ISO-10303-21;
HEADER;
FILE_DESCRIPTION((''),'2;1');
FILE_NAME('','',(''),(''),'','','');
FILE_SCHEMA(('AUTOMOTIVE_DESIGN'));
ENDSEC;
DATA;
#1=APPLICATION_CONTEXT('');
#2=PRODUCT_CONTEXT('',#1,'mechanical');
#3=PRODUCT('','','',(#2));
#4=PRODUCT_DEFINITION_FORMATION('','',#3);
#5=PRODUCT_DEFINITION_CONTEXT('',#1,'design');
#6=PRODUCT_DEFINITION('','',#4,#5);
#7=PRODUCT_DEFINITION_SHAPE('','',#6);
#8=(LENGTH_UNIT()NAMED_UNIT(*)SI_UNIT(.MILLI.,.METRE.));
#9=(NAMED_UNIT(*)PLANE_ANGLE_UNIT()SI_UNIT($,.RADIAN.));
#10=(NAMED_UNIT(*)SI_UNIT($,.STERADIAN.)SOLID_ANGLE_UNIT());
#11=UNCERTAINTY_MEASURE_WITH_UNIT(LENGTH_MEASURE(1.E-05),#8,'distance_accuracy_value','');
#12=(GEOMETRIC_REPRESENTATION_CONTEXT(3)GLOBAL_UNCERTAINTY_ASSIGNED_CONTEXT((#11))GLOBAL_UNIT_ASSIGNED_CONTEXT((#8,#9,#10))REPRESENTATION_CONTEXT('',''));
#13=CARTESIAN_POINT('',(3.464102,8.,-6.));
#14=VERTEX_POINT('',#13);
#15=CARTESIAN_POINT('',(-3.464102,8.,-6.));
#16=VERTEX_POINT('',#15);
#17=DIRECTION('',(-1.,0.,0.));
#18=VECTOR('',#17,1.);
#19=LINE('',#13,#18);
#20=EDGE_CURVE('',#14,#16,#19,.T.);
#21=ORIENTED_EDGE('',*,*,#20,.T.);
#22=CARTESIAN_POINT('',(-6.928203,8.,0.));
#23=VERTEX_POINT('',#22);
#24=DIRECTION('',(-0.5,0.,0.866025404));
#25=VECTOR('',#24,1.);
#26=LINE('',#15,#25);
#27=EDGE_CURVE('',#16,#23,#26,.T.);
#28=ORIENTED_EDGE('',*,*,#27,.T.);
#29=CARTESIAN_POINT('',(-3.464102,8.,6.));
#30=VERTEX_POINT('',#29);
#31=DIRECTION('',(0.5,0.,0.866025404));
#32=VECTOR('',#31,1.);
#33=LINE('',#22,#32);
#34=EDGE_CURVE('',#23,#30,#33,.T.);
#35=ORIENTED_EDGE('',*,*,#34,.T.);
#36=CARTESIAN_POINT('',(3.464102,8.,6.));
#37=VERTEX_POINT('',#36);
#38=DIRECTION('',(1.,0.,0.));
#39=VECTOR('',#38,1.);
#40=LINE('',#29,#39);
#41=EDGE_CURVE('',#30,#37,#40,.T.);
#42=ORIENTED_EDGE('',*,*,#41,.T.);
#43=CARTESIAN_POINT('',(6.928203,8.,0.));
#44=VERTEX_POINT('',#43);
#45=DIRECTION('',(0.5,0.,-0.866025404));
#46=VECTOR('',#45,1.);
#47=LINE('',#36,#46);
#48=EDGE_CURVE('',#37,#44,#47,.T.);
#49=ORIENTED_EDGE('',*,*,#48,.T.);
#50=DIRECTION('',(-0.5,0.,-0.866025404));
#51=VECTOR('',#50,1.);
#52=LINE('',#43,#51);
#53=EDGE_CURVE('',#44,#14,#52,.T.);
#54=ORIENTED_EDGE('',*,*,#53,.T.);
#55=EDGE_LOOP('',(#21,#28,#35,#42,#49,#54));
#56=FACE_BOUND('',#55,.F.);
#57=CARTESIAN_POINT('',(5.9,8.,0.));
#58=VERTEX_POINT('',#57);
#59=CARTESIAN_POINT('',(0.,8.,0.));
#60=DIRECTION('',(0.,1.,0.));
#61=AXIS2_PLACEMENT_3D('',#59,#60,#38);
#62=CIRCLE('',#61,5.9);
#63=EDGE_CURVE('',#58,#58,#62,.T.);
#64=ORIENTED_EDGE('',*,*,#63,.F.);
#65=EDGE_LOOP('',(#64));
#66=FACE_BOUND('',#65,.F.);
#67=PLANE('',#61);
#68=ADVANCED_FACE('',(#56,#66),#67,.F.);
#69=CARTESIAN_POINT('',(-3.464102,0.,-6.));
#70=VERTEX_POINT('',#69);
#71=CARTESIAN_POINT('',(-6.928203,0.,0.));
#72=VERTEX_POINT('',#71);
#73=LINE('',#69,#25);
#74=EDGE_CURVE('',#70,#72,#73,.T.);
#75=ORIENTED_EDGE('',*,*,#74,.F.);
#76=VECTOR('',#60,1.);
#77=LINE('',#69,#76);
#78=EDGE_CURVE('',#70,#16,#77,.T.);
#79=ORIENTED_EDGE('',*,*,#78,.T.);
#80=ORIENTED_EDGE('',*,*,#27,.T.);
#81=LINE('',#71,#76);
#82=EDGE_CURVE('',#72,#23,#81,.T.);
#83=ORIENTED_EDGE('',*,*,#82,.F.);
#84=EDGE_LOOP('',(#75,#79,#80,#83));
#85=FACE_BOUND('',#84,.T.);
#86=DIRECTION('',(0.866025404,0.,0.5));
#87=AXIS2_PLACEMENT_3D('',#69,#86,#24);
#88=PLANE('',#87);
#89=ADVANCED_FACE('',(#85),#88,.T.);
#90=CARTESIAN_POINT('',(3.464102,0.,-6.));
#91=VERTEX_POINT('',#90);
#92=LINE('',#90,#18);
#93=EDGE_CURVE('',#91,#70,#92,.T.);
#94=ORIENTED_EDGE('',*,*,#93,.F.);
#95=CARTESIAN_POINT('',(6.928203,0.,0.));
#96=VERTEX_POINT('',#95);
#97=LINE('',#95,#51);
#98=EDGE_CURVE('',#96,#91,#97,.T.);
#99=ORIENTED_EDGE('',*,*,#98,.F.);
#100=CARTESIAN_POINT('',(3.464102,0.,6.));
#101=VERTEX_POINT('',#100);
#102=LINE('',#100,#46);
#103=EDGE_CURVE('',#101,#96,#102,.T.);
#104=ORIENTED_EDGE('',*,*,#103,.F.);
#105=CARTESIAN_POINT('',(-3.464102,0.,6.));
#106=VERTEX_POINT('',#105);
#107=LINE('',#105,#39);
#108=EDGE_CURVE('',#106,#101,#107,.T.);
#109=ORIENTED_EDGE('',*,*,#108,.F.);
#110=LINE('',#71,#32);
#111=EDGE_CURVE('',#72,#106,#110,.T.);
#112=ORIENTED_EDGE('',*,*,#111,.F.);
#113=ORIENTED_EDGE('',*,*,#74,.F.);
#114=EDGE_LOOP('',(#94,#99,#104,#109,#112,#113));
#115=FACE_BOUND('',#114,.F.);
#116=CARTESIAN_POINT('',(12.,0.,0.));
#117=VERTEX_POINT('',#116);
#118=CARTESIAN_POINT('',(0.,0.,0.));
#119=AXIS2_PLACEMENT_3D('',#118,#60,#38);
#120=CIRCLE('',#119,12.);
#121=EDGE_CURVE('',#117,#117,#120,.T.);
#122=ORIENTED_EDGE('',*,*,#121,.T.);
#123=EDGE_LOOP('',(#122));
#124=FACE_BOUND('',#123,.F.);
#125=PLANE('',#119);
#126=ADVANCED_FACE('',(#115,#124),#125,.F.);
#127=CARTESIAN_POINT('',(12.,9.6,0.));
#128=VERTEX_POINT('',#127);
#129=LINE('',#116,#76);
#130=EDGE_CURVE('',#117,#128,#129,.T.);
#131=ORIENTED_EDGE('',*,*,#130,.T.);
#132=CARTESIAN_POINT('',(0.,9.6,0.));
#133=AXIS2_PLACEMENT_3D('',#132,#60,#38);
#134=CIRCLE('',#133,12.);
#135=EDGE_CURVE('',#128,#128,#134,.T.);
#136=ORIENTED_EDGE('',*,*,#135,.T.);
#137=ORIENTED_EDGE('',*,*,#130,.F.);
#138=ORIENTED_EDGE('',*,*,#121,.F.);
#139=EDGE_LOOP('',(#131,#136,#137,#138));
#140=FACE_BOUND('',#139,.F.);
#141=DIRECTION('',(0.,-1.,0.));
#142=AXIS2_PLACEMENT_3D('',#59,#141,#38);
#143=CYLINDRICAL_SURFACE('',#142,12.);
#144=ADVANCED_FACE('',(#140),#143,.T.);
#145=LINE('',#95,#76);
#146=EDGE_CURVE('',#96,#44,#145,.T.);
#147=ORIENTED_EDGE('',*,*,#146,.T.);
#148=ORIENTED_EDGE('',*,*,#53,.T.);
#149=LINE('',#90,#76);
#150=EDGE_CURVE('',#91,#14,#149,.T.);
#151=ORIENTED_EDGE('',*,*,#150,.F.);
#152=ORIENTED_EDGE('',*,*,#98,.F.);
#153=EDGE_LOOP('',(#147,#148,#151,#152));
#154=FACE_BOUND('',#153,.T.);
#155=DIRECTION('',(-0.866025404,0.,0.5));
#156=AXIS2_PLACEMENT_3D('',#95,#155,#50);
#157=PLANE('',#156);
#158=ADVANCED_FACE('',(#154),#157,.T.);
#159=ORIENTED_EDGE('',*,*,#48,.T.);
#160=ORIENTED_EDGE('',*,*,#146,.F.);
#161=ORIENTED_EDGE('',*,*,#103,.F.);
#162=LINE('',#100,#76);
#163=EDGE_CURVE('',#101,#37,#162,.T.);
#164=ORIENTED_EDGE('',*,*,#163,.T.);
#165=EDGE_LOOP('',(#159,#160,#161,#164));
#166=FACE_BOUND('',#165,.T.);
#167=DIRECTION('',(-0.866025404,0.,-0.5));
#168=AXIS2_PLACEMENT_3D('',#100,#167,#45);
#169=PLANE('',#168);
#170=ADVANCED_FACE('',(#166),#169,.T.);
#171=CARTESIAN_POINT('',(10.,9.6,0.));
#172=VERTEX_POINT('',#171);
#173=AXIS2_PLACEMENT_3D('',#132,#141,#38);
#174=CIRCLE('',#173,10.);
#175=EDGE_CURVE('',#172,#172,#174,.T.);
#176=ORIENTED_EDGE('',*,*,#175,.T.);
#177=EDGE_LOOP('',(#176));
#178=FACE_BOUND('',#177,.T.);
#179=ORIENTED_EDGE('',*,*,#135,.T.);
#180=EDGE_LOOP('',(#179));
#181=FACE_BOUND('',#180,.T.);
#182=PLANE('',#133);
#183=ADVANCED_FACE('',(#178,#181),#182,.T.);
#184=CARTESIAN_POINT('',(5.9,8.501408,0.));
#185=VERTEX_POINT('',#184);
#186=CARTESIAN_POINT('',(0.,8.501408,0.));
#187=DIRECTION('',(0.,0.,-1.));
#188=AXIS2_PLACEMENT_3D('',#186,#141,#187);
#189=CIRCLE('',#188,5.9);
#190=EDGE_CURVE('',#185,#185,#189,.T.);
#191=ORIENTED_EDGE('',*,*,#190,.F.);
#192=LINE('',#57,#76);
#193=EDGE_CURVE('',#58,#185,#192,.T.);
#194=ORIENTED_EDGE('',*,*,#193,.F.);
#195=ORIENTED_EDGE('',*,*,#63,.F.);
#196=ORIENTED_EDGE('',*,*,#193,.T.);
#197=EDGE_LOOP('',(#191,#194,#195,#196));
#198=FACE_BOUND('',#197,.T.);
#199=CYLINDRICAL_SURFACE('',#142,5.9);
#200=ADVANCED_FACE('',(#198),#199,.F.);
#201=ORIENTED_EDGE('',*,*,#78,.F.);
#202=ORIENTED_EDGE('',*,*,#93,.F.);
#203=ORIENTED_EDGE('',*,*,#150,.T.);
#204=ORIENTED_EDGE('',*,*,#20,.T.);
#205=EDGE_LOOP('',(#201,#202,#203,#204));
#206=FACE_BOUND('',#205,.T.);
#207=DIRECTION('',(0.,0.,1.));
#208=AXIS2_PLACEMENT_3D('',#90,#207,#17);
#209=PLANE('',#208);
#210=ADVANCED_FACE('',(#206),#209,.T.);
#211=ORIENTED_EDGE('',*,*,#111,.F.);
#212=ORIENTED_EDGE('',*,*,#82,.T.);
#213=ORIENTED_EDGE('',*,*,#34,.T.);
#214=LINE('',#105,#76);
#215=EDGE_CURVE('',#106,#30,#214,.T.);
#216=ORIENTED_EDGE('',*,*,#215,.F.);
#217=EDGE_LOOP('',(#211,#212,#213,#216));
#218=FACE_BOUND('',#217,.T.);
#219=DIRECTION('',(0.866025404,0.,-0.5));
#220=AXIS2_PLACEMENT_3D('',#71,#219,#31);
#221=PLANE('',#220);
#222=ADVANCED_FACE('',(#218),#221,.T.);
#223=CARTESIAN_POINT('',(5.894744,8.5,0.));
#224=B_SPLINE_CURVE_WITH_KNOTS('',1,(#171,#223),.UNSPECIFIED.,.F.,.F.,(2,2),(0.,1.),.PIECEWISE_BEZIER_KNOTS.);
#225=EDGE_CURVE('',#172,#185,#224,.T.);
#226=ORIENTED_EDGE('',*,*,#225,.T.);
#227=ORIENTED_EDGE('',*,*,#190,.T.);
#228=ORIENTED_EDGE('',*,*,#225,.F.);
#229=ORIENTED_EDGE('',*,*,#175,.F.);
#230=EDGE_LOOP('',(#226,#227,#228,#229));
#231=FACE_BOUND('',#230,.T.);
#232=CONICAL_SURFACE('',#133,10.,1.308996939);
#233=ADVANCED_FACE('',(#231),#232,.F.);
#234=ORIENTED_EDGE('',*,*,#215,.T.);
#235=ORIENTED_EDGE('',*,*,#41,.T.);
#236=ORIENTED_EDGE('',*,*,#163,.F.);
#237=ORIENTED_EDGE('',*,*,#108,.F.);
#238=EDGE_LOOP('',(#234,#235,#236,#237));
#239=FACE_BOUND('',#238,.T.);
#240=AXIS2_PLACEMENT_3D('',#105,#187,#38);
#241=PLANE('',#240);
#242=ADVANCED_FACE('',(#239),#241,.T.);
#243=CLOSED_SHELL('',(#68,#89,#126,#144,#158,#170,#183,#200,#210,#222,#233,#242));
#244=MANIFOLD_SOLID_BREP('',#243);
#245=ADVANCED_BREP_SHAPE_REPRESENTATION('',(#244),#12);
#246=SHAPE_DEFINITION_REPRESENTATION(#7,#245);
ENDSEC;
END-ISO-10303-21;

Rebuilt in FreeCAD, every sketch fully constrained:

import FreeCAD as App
import Part
import Sketcher
Q = App.Units.Quantity


def add_polygon(sketch, points):
    """Adds a closed chain of lines whose ends are joined by coincident constraints."""
    first, n = sketch.GeometryCount, len(points)
    for a, b in zip(points, points[1:] + points[:1]):
        sketch.addGeometry(Part.LineSegment(App.Vector(*a, 0), App.Vector(*b, 0)), False)
    for i in range(n):
        sketch.addConstraint(Sketcher.Constraint("Coincident", first + i, 2, first + (i + 1) % n, 1))

doc = App.newDocument("Part")
body = doc.addObject("PartDesign::Body", "Body")

sketch1 = doc.addObject("Sketcher::SketchObject", "Sketch")
body.addObject(sketch1)
sketch1.AttachmentSupport = (doc.XZ_Plane, [""])
sketch1.MapMode = "FlatFace"
sketch1.addGeometry(Part.Circle(App.Vector(0, 0, 0), App.Vector(0, 0, 1), 12), False)
add_polygon(sketch1, [(-3, -6), (3, -6), (7, 0), (3, 6), (-3, 6), (-7, 0)])
sketch1.addConstraint([
    Sketcher.Constraint("Horizontal", 1),
    Sketcher.Constraint("Horizontal", 4),
    Sketcher.Constraint("Coincident", 0, 3, -1, 1),
    Sketcher.Constraint("Symmetric", 1, 2, 4, 2, -1, 1),
    Sketcher.Constraint("Symmetric", 2, 2, 5, 2, -1, 1),
    Sketcher.Constraint("PointOnObject", 2, 2, -1),
    Sketcher.Constraint("Parallel", 3, 6),
    Sketcher.Constraint("Vertical", 1, 2, 3, 2),
    Sketcher.Constraint("Diameter", 0, Q("24 mm")),
    Sketcher.Constraint("Angle", 2, Q("60 deg")),
    Sketcher.Constraint("DistanceY", 1, 2, -1, 1, Q("6 mm")),
    Sketcher.Constraint("DistanceX", -1, 1, 1, 2, Q("3.464102 mm")),
])
pad1 = doc.addObject("PartDesign::Pad", "Pad")
body.addObject(pad1)
pad1.Profile = sketch1
pad1.Length = 8
pad1.Reversed = True

sketch2 = doc.addObject("Sketcher::SketchObject", "Sketch001")
body.addObject(sketch2)
sketch2.AttachmentSupport = (doc.XZ_Plane, [""])
sketch2.MapMode = "FlatFace"
sketch2.AttachmentOffset = App.Placement(App.Vector(0, 0, -8), App.Rotation())
sketch2.addGeometry([
    Part.Circle(App.Vector(0, 0, 0), App.Vector(0, 0, 1), 12),
    Part.Circle(App.Vector(0, 0, 0), App.Vector(0, 0, 1), 6),
], False)
sketch2.addConstraint([
    Sketcher.Constraint("Coincident", 0, 3, -1, 1),
    Sketcher.Constraint("Coincident", 1, 3, -1, 1),
    Sketcher.Constraint("Diameter", 0, Q("24 mm")),
    Sketcher.Constraint("Diameter", 1, Q("11.8 mm")),
])
pad2 = doc.addObject("PartDesign::Pad", "Pad001")
body.addObject(pad2)
pad2.Profile = sketch2
pad2.Length = 1.6
pad2.Reversed = True

sketch3 = doc.addObject("Sketcher::SketchObject", "Sketch002")
body.addObject(sketch3)
sketch3.AttachmentSupport = (doc.XZ_Plane, [""])
sketch3.MapMode = "FlatFace"
sketch3.AttachmentOffset = App.Placement(App.Vector(0, 0, -9.6), App.Rotation())
sketch3.addGeometry(Part.Circle(App.Vector(0, 0, 0), App.Vector(0, 0, 1), 10), False)
sketch3.addConstraint([
    Sketcher.Constraint("Coincident", 0, 3, -1, 1),
    Sketcher.Constraint("Diameter", 0, Q("20 mm")),
])
pocket1 = doc.addObject("PartDesign::Pocket", "Pocket")
body.addObject(pocket1)
pocket1.Profile = sketch3
pocket1.Length = 1.1
pocket1.Reversed = True
pocket1.TaperAngle = -75

doc.recompute()
